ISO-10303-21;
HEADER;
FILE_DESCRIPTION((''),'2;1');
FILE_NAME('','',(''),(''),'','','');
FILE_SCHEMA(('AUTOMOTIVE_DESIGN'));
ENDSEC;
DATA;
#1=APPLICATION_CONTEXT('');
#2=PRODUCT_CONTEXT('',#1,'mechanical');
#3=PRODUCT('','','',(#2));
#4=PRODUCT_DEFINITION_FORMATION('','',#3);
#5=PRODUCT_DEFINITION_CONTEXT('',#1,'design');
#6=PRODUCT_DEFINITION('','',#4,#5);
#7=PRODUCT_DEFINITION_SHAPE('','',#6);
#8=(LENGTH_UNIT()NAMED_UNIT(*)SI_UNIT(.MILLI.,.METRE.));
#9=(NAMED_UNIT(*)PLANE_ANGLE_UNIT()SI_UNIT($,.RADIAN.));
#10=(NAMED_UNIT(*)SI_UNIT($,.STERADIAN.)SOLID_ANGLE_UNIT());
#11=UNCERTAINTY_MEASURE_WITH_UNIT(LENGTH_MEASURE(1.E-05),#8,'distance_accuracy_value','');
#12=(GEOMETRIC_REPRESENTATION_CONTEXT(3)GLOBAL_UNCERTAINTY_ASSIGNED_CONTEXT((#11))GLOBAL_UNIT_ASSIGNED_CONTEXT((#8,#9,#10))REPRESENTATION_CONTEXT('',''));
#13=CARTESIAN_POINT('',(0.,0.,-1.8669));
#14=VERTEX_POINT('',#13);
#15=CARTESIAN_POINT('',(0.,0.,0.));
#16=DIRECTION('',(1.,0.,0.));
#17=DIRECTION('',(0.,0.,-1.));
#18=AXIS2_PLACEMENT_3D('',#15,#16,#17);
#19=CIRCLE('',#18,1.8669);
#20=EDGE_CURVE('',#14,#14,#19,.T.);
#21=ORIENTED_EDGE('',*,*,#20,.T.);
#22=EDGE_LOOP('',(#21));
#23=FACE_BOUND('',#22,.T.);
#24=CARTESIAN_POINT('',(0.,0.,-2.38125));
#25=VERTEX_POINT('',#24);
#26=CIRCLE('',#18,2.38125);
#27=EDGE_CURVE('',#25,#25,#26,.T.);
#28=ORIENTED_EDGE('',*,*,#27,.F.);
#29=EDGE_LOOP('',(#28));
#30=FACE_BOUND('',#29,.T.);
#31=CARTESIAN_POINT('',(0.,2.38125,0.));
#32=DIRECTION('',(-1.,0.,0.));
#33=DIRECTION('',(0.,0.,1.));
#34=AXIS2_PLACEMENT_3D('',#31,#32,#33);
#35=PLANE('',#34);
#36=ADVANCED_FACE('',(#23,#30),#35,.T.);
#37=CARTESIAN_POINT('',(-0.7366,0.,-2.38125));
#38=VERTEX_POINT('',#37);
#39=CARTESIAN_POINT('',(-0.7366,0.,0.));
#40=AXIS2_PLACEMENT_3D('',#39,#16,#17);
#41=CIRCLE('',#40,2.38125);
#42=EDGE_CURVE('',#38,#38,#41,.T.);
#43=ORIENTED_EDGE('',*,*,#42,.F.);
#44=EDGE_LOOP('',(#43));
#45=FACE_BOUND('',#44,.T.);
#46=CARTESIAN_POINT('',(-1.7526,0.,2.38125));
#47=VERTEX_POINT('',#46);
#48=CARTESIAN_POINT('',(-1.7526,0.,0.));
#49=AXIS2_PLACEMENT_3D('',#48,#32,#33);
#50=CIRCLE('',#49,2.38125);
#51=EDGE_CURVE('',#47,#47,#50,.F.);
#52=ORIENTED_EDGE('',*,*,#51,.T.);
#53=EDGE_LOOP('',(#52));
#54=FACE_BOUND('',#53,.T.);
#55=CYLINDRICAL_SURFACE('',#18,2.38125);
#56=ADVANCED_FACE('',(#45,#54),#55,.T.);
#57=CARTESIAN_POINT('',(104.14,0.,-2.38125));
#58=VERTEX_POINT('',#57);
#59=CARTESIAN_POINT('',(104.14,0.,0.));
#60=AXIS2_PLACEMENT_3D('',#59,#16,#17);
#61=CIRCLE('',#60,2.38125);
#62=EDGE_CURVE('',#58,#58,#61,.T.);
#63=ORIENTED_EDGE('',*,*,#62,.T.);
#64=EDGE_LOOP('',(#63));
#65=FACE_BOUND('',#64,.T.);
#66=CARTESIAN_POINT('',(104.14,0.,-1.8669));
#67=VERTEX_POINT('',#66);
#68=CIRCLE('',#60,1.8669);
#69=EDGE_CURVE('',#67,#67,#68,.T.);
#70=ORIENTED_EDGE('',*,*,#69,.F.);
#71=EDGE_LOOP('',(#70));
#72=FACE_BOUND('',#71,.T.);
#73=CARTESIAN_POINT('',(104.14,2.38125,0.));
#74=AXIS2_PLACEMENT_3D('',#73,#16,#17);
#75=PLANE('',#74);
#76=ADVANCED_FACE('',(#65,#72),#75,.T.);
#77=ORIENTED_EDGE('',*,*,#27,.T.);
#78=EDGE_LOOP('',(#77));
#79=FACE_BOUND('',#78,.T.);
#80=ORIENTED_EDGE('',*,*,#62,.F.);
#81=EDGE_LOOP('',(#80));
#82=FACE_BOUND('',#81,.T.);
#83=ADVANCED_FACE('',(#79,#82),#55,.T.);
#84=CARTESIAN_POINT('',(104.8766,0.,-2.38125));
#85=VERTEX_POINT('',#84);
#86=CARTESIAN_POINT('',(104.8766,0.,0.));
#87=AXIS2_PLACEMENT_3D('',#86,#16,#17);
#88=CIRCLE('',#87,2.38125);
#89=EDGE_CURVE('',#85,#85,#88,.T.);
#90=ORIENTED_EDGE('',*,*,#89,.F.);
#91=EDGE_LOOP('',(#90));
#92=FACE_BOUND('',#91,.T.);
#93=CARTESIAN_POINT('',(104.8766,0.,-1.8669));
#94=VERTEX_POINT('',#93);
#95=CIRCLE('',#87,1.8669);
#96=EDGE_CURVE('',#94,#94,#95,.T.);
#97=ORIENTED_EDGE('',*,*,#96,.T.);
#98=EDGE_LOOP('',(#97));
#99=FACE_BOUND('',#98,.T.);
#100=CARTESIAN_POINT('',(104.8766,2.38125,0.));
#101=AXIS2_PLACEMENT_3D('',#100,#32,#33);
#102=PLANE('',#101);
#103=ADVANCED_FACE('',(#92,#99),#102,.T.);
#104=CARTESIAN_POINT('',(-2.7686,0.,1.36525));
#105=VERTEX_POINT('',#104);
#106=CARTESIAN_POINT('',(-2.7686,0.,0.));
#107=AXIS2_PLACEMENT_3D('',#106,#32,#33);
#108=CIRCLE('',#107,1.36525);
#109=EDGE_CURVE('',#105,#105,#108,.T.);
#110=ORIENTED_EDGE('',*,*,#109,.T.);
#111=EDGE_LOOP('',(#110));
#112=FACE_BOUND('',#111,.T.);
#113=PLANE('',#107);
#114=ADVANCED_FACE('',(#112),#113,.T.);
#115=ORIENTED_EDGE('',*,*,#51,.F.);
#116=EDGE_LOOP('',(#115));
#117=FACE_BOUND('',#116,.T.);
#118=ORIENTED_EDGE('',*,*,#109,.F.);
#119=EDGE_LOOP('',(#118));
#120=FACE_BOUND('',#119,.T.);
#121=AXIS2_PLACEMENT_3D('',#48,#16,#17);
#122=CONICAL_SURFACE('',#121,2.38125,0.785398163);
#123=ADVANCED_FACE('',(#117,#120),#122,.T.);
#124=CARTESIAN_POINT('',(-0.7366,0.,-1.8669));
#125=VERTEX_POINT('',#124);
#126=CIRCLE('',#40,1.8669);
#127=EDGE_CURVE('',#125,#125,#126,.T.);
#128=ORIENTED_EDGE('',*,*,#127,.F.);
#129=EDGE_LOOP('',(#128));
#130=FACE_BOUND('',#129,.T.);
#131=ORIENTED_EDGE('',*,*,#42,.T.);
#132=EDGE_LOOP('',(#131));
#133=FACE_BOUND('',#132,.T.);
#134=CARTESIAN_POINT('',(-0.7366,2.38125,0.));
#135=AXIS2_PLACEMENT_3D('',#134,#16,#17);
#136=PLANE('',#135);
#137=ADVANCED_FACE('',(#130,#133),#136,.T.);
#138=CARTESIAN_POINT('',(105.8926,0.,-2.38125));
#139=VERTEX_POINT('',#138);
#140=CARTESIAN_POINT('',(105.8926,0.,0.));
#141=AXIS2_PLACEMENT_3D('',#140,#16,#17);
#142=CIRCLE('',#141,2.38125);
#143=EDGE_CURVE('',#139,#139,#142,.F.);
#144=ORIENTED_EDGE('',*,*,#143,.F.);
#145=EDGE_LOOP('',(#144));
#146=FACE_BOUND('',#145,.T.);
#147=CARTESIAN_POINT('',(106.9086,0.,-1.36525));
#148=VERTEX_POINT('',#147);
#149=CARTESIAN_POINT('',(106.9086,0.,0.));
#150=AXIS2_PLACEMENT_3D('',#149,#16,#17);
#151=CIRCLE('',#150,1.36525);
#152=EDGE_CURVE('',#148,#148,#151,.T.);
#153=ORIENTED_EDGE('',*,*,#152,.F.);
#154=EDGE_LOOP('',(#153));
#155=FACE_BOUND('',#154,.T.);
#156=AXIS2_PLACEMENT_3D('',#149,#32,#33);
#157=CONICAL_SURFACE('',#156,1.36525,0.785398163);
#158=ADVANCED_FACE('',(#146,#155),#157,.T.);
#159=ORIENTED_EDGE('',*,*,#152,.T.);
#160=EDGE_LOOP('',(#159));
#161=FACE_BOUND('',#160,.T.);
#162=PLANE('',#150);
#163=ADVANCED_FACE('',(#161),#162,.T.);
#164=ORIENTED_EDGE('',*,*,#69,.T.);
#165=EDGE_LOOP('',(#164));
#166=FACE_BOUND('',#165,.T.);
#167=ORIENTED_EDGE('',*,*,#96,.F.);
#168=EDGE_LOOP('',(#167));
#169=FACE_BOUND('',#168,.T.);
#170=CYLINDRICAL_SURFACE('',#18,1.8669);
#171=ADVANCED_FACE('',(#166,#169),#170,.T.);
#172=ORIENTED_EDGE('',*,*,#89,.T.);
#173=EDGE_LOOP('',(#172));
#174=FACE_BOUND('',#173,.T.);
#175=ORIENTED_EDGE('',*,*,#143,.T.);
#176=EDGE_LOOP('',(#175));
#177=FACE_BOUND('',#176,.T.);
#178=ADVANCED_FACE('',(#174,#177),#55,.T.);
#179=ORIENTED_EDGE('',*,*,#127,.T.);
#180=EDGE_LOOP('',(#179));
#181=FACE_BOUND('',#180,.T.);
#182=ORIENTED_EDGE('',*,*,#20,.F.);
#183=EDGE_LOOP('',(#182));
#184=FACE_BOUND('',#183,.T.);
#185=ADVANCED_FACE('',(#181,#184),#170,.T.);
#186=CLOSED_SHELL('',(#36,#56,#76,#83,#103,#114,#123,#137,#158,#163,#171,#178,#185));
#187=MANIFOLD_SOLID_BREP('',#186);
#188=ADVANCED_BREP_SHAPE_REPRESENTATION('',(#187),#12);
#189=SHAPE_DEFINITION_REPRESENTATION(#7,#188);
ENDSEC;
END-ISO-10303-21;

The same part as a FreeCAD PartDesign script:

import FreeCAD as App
import Part
import Sketcher
Q = App.Units.Quantity


def edges_at(feature, points):
    """Names of the edges that pass closest to the given points."""
    edges = feature.Shape.Edges
    near = lambda p: min(range(len(edges)), key=lambda i: edges[i].distToShape(Part.Vertex(*p))[0])
    return sorted({f"Edge{near(p) + 1}" for p in points})


def add_polygon(sketch, points):
    """Adds a closed chain of lines whose ends are joined by coincident constraints."""
    first, n = sketch.GeometryCount, len(points)
    for a, b in zip(points, points[1:] + points[:1]):
        sketch.addGeometry(Part.LineSegment(App.Vector(*a, 0), App.Vector(*b, 0)), False)
    for i in range(n):
        sketch.addConstraint(Sketcher.Constraint("Coincident", first + i, 2, first + (i + 1) % n, 1))

doc = App.newDocument("Part")
body = doc.addObject("PartDesign::Body", "Body")

sketch1 = body.newObject("Sketcher::SketchObject", "Sketch")
sketch1.AttachmentSupport = (doc.getObject("XY_Plane"), [""])
sketch1.MapMode = "FlatFace"
add_polygon(sketch1, [(104.1, 2.4), (0, 2.4), (0, 1.9), (-0.7, 1.9), (-0.7, 2.4), (-2.8, 2.4), (-2.8, 0), (106.9, 0), (106.9, 2.4), (104.9, 2.4), (104.9, 1.9), (104.1, 1.9)])
sketch1.addConstraint([
    Sketcher.Constraint("Horizontal", 0),
    Sketcher.Constraint("Vertical", 1),
    Sketcher.Constraint("Horizontal", 2),
    Sketcher.Constraint("Vertical", 3),
    Sketcher.Constraint("Horizontal", 4),
    Sketcher.Constraint("Vertical", 5),
    Sketcher.Constraint("Horizontal", 6),
    Sketcher.Constraint("Vertical", 7),
    Sketcher.Constraint("Horizontal", 8),
    Sketcher.Constraint("Vertical", 9),
    Sketcher.Constraint("Horizontal", 10),
    Sketcher.Constraint("Vertical", 11),
    Sketcher.Constraint("PointOnObject", 0, 2, -2),
    Sketcher.Constraint("PointOnObject", 5, 2, -1),
    Sketcher.Constraint("Horizontal", 0, 2, 3, 2),
    Sketcher.Constraint("Horizontal", 4, 2, 7, 2),
    Sketcher.Constraint("Horizontal", 2, 2, 9, 2),
    Sketcher.Constraint("Equal", 4, 8),
    Sketcher.Constraint("Equal", 2, 10),
    Sketcher.Constraint("DistanceX", 0, 2, 0, 1, Q("4.1 in")),
    Sketcher.Constraint("DistanceX", 4, 2, 4, 1, Q("0.08 in")),
    Sketcher.Constraint("DistanceX", 2, 2, 2, 1, Q("0.029 in")),
    Sketcher.Constraint("DistanceY", 5, 2, 5, 1, Q("0.09375 in")),
    Sketcher.Constraint("DistanceY", -1, 1, 1, 2, Q("0.0735 in")),
])
revolution = body.newObject("PartDesign::Revolution", "Revolution")
revolution.Profile = sketch1
revolution.ReferenceAxis = (sketch1, ["H_Axis"])
revolution.Angle = 360
doc.recompute()

chamfer = body.newObject("PartDesign::Chamfer", "Chamfer")
chamfer.Base = (revolution, edges_at(revolution, [(-2.769, -2.381, 0), (106.909, -2.381, 0)]))
chamfer.Size = Q("0.04 in")

doc.recompute()
